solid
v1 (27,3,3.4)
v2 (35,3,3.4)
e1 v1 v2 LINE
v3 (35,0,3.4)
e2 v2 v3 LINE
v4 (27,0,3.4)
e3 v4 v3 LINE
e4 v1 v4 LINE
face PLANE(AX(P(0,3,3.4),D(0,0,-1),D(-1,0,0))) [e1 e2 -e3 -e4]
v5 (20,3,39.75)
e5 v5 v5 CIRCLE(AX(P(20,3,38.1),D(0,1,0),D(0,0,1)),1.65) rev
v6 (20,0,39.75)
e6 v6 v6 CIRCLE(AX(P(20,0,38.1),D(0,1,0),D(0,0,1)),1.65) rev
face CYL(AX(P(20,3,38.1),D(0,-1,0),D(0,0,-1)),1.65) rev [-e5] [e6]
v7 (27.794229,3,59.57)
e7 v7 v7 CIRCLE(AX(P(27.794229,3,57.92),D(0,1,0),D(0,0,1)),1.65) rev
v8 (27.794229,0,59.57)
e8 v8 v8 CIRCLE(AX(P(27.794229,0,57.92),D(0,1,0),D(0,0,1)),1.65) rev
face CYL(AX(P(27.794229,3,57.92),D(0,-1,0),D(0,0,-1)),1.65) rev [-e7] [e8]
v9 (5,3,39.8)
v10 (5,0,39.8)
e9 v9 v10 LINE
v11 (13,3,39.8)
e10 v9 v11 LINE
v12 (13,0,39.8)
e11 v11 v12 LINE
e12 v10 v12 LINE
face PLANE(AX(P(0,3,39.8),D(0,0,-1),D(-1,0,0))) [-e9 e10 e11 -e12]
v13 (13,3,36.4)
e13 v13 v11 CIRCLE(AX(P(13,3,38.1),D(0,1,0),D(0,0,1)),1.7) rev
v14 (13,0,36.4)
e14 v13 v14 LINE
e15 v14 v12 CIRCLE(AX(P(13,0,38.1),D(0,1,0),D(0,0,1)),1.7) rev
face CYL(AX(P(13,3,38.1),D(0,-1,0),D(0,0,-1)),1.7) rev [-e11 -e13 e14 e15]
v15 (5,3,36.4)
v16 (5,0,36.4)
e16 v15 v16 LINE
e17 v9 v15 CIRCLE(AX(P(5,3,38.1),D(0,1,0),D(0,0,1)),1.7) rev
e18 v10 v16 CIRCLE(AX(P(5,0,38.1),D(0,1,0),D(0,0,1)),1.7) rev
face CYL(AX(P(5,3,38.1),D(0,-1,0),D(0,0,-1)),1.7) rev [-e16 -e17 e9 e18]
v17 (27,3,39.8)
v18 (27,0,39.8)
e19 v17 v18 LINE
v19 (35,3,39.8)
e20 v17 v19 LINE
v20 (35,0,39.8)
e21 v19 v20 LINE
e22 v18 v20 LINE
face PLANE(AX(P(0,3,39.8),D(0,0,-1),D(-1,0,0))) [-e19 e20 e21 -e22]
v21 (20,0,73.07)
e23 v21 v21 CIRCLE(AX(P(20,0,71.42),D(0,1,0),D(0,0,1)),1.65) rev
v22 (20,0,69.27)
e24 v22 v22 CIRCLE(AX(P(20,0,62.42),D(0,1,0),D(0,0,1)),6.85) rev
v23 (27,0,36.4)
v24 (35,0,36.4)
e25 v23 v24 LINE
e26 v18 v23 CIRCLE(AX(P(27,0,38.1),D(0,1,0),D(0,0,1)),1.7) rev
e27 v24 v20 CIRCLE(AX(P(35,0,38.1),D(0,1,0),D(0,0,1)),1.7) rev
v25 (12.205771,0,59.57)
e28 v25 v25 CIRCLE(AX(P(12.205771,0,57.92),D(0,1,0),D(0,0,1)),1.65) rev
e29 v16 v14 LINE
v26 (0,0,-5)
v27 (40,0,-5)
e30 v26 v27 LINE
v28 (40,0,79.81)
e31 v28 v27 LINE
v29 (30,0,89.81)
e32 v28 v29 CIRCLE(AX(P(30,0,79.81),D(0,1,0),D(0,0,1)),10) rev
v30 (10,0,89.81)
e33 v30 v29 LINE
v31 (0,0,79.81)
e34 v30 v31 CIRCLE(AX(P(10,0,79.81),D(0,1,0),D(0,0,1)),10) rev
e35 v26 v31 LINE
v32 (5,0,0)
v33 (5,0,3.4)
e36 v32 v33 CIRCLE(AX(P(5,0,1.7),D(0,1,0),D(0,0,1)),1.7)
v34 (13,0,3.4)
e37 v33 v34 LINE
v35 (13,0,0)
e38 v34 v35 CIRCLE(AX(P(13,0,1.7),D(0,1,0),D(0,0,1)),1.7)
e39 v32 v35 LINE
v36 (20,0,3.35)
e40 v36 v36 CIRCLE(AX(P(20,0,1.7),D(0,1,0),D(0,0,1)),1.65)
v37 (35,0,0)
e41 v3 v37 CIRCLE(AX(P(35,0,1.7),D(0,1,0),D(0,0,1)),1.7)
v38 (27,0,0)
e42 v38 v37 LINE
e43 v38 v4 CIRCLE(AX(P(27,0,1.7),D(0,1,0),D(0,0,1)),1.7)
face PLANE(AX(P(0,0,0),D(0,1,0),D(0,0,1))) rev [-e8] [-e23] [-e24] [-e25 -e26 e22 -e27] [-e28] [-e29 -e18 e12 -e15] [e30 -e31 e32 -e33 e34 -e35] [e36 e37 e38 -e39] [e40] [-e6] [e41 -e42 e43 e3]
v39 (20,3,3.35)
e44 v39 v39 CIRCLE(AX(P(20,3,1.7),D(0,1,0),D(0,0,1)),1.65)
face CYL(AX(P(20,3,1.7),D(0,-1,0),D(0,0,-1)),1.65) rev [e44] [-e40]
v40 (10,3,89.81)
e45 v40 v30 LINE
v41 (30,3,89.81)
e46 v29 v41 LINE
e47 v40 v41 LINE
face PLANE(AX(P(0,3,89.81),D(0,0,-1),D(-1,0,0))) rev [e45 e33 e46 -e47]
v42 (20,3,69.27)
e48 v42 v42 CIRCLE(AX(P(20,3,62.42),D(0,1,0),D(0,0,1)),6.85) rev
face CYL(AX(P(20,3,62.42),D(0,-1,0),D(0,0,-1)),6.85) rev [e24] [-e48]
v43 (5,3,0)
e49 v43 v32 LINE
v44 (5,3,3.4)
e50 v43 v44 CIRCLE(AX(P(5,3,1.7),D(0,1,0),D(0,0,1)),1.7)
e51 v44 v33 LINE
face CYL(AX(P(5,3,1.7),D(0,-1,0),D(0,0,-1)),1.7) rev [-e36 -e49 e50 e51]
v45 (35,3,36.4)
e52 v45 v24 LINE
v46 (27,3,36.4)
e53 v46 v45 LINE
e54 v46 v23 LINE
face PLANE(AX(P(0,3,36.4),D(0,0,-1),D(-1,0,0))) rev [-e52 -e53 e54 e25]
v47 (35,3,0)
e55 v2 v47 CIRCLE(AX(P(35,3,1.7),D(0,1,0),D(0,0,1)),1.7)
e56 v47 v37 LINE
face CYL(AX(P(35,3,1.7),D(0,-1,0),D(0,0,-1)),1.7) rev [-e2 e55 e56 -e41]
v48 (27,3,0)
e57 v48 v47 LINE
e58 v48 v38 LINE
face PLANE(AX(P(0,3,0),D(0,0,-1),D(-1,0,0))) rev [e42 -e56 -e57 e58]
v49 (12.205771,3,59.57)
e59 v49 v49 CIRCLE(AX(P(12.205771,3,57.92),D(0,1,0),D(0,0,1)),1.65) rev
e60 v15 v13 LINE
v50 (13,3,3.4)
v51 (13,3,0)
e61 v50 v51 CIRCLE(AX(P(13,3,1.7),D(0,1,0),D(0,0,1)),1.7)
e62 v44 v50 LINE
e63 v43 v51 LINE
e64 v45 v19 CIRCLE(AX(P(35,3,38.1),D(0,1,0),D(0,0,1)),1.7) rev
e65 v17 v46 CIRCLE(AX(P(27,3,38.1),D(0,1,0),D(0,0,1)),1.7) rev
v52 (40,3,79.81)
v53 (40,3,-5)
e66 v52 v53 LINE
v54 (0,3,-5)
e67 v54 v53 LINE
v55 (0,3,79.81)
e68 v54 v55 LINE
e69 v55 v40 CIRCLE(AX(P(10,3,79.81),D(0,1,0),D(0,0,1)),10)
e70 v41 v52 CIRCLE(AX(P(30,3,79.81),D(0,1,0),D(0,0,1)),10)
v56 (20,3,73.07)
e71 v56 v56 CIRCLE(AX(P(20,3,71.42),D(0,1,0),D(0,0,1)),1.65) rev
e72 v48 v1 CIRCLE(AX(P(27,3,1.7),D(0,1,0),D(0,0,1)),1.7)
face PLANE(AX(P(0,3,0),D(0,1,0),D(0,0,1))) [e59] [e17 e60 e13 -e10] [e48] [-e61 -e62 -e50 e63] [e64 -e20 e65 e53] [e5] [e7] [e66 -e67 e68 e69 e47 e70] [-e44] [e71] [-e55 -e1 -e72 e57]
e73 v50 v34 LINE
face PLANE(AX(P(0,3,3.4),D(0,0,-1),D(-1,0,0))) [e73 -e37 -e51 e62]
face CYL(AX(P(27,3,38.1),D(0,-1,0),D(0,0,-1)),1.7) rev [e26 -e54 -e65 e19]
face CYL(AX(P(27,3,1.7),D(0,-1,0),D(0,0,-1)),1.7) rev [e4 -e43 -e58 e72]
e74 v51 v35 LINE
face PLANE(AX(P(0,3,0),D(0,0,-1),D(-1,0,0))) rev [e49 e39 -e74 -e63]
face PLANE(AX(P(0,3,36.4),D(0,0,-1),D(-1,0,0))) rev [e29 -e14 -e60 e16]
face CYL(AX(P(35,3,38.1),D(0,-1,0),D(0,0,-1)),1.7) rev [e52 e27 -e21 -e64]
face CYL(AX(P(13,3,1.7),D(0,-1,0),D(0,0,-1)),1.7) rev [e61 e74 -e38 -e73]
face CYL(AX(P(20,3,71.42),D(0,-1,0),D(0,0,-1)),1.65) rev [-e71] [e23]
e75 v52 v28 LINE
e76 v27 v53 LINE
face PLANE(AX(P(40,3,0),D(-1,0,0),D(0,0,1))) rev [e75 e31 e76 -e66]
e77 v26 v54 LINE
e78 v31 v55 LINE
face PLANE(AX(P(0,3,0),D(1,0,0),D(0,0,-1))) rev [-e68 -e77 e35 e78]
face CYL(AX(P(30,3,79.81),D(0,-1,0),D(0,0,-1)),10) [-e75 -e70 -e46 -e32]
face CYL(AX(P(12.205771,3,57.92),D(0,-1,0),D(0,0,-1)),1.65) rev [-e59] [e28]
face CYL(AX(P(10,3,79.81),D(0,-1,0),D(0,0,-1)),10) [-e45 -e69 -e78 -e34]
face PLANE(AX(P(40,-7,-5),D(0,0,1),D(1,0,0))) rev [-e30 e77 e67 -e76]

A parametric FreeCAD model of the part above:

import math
import FreeCAD as App
import Part
import Sketcher
from FreeCAD import Vector
Q = App.Units.Quantity


def edges_at(feature, points):
    """Names of the edges that pass closest to the given points."""
    edges = feature.Shape.Edges
    near = lambda p: min(range(len(edges)), key=lambda i: edges[i].distToShape(Part.Vertex(*p))[0])
    return sorted({f"Edge{near(p) + 1}" for p in points})


def add_polygon(sketch, points):
    """Adds a closed chain of lines whose ends are joined by coincident constraints."""
    first, n = sketch.GeometryCount, len(points)
    for a, b in zip(points, points[1:] + points[:1]):
        sketch.addGeometry(Part.LineSegment(App.Vector(*a, 0), App.Vector(*b, 0)), False)
    for i in range(n):
        sketch.addConstraint(Sketcher.Constraint("Coincident", first + i, 2, first + (i + 1) % n, 1))

doc = App.newDocument("Part")
body = doc.addObject("PartDesign::Body", "Body")

# Sketch on XZ plane
sketch1 = body.newObject("Sketcher::SketchObject", "Sketch")
sketch1.AttachmentSupport = (doc.getObject("XZ_Plane"), [""])
sketch1.MapMode = "FlatFace"
add_polygon(sketch1, [(0, -50), (0, 89.8), (40, 89.8), (40, -50)])  # lines 0-3
sketch1.addGeometry(Part.Circle(Vector(27.8, 57.9, 0), Vector(0, 0, 1), 1.6), False)  # 4
sketch1.addGeometry(Part.ArcOfCircle(Part.Circle(Vector(27, 38.1, 0), Vector(0, 0, 1), 1.7), math.radians(90), math.radians(270)), False)  # 5
sketch1.addGeometry(Part.LineSegment(Vector(27, 36.4, 0), Vector(35, 36.4, 0)), False)  # 6
sketch1.addGeometry(Part.ArcOfCircle(Part.Circle(Vector(35, 38.1, 0), Vector(0, 0, 1), 1.7), math.radians(-90), math.radians(90)), False)  # 7
sketch1.addGeometry(Part.LineSegment(Vector(35, 39.8, 0), Vector(27, 39.8, 0)), False)  # 8
sketch1.addGeometry(Part.Circle(Vector(20, 71.4, 0), Vector(0, 0, 1), 1.6), False)  # 9
sketch1.addGeometry(Part.Circle(Vector(20, 62.4, 0), Vector(0, 0, 1), 6.8), False)  # 10
sketch1.addGeometry(Part.Circle(Vector(12.2, 57.9, 0), Vector(0, 0, 1), 1.6), False)  # 11
sketch1.addGeometry(Part.Circle(Vector(20, 38.1, 0), Vector(0, 0, 1), 1.6), False)  # 12
sketch1.addGeometry(Part.ArcOfCircle(Part.Circle(Vector(5, 38.1, 0), Vector(0, 0, 1), 1.7), math.radians(90), math.radians(270)), False)  # 13
sketch1.addGeometry(Part.LineSegment(Vector(5, 36.4, 0), Vector(13, 36.4, 0)), False)  # 14
sketch1.addGeometry(Part.ArcOfCircle(Part.Circle(Vector(13, 38.1, 0), Vector(0, 0, 1), 1.7), math.radians(-90), math.radians(90)), False)  # 15
sketch1.addGeometry(Part.LineSegment(Vector(13, 39.8, 0), Vector(5, 39.8, 0)), False)  # 16
sketch1.addGeometry(Part.LineSegment(Vector(27, 0, 0), Vector(35, 0, 0)), False)  # 17
sketch1.addGeometry(Part.ArcOfCircle(Part.Circle(Vector(35, 1.7, 0), Vector(0, 0, 1), 1.7), math.radians(-90), math.radians(90)), False)  # 18
sketch1.addGeometry(Part.LineSegment(Vector(35, 3.4, 0), Vector(27, 3.4, 0)), False)  # 19
sketch1.addGeometry(Part.ArcOfCircle(Part.Circle(Vector(27, 1.7, 0), Vector(0, 0, 1), 1.7), math.radians(90), math.radians(270)), False)  # 20
sketch1.addGeometry(Part.Circle(Vector(27.8, -18.1, 0), Vector(0, 0, 1), 1.6), False)  # 21
sketch1.addGeometry(Part.Circle(Vector(20, 1.7, 0), Vector(0, 0, 1), 1.6), False)  # 22
sketch1.addGeometry(Part.LineSegment(Vector(5, 0, 0), Vector(13, 0, 0)), False)  # 23
sketch1.addGeometry(Part.ArcOfCircle(Part.Circle(Vector(13, 1.7, 0), Vector(0, 0, 1), 1.7), math.radians(-90), math.radians(90)), False)  # 24
sketch1.addGeometry(Part.LineSegment(Vector(13, 3.4, 0), Vector(5, 3.4, 0)), False)  # 25
sketch1.addGeometry(Part.ArcOfCircle(Part.Circle(Vector(5, 1.7, 0), Vector(0, 0, 1), 1.7), math.radians(90), math.radians(270)), False)  # 26
sketch1.addGeometry(Part.Circle(Vector(12.2, -18.1, 0), Vector(0, 0, 1), 1.6), False)  # 27
sketch1.addGeometry(Part.Circle(Vector(20, -22.6, 0), Vector(0, 0, 1), 6.8), False)  # 28
sketch1.addGeometry(Part.Circle(Vector(20, -31.6, 0), Vector(0, 0, 1), 1.6), False)  # 29
sketch1.addConstraint([
    Sketcher.Constraint("Tangent", 5, 2, 6, 1),
    Sketcher.Constraint("Tangent", 6, 2, 7, 1),
    Sketcher.Constraint("Tangent", 7, 2, 8, 1),
    Sketcher.Constraint("Tangent", 8, 2, 5, 1),
    Sketcher.Constraint("Tangent", 13, 2, 14, 1),
    Sketcher.Constraint("Tangent", 14, 2, 15, 1),
    Sketcher.Constraint("Tangent", 15, 2, 16, 1),
    Sketcher.Constraint("Tangent", 16, 2, 13, 1),
    Sketcher.Constraint("Tangent", 17, 2, 18, 1),
    Sketcher.Constraint("Tangent", 18, 2, 19, 1),
    Sketcher.Constraint("Tangent", 19, 2, 20, 1),
    Sketcher.Constraint("Tangent", 20, 2, 17, 1),
    Sketcher.Constraint("Tangent", 23, 2, 24, 1),
    Sketcher.Constraint("Tangent", 24, 2, 25, 1),
    Sketcher.Constraint("Tangent", 25, 2, 26, 1),
    Sketcher.Constraint("Tangent", 26, 2, 23, 1),
    Sketcher.Constraint("Vertical", 0),
    Sketcher.Constraint("Horizontal", 1),
    Sketcher.Constraint("Vertical", 2),
    Sketcher.Constraint("Horizontal", 3),
    Sketcher.Constraint("Horizontal", 6),
    Sketcher.Constraint("Horizontal", 8),
    Sketcher.Constraint("Horizontal", 14),
    Sketcher.Constraint("Horizontal", 16),
    Sketcher.Constraint("Horizontal", 17),
    Sketcher.Constraint("Horizontal", 19),
    Sketcher.Constraint("Horizontal", 23),
    Sketcher.Constraint("Horizontal", 25),
    Sketcher.Constraint("Equal", 4, 9),
    Sketcher.Constraint("Equal", 9, 11),
    Sketcher.Constraint("Equal", 11, 12),
    Sketcher.Constraint("Equal", 7, 13),
    Sketcher.Constraint("Equal", 15, 18),
    Sketcher.Constraint("Equal", 12, 21),
    Sketcher.Constraint("Equal", 21, 22),
    Sketcher.Constraint("Equal", 20, 24),
    Sketcher.Constraint("Equal", 22, 27),
    Sketcher.Constraint("Equal", 10, 28),
    Sketcher.Constraint("Equal", 27, 29),
    Sketcher.Constraint("PointOnObject", 0, 2, -2),
    Sketcher.Constraint("PointOnObject", 17, 2, -1),
    Sketcher.Constraint("PointOnObject", 23, 2, -1),
    Sketcher.Constraint("Horizontal", 4, 3, 11, 3),
    Sketcher.Constraint("Horizontal", 7, 3, 12, 3),
    Sketcher.Constraint("Horizontal", 12, 3, 13, 3),
    Sketcher.Constraint("Horizontal", 20, 3, 22, 3),
    Sketcher.Constraint("Horizontal", 21, 3, 27, 3),
    Sketcher.Constraint("Vertical", 9, 3, 10, 3),
    Sketcher.Constraint("Vertical", 10, 3, 12, 3),
    Sketcher.Constraint("Vertical", 7, 3, 18, 3),
    Sketcher.Constraint("Vertical", 5, 3, 20, 3),
    Sketcher.Constraint("Vertical", 4, 3, 21, 3),
    Sketcher.Constraint("Vertical", 12, 3, 22, 3),
    Sketcher.Constraint("Vertical", 15, 3, 24, 3),
    Sketcher.Constraint("Vertical", 13, 3, 26, 3),
    Sketcher.Constraint("Vertical", 11, 3, 27, 3),
    Sketcher.Constraint("Vertical", 22, 3, 28, 3),
    Sketcher.Constraint("Vertical", 28, 3, 29, 3),
    Sketcher.Constraint("Equal", 8, 14),
    Sketcher.Constraint("Diameter", 4, Q("3.3 mm")),
    Sketcher.Constraint("Diameter", 10, Q("13.7 mm")),
    Sketcher.Constraint("Radius", 5, Q("1.7 mm")),
    Sketcher.Constraint("DistanceX", 1, 1, 1, 2, Q("40 mm")),
    Sketcher.Constraint("DistanceX", 6, 1, 6, 2, Q("8 mm")),
    Sketcher.Constraint("DistanceX", -1, 1, 5, 3, Q("27 mm")),
    Sketcher.Constraint("DistanceX", -1, 1, 9, 3, Q("20 mm")),
    Sketcher.Constraint("DistanceX", -1, 1, 13, 3, Q("5 mm")),
    Sketcher.Constraint("DistanceY", 10, 3, 9, 3, Q("9 mm")),
    Sketcher.Constraint("DistanceY", 29, 3, 28, 3, Q("9 mm")),
    Sketcher.Constraint("DistanceY", 0, 1, 0, 2, Q("139.82 mm")),
    Sketcher.Constraint("DistanceY", -1, 1, 5, 3, Q("38.1 mm")),
    Sketcher.Constraint("DistanceY", 4, 3, 9, 3, Q("13.5 mm")),
    Sketcher.Constraint("DistanceY", 28, 3, 21, 3, Q("4.5 mm")),
    Sketcher.Constraint("DistanceY", -1, 1, 4, 3, Q("57.92 mm")),
    Sketcher.Constraint("DistanceY", 21, 3, -1, 1, Q("18.12 mm")),
    Sketcher.Constraint("DistanceY", -1, 1, 0, 2, Q("89.81 mm")),
    Sketcher.Constraint("DistanceX", -1, 1, 4, 3, Q("27.794229 mm")),
    Sketcher.Constraint("DistanceX", -1, 1, 11, 3, Q("12.205771 mm")),
])
pad1 = body.newObject("PartDesign::Pad", "Pad")
pad1.Profile = sketch1
pad1.Length = 3
pad1.Reversed = True
doc.recompute()

fillet = body.newObject("PartDesign::Fillet", "Fillet")
fillet.Base = (pad1, edges_at(pad1, [
    (0, 1.5, -50.01),
    (40, 1.5, -50.01),
    (40, 1.5, 89.81),
    (0, 1.5, 89.81),
]))
fillet.Radius = 10

# Sketch on XZ plane
sketch2 = body.newObject("Sketcher::SketchObject", "Sketch001")
sketch2.AttachmentSupport = (doc.getObject("XZ_Plane"), [""])
sketch2.MapMode = "FlatFace"
sketch2.AttachmentOffset = App.Placement(Vector(0, 0, -3), App.Rotation())
add_polygon(sketch2, [(0, -78), (0, -5), (40, -5), (40, -78)])  # lines 0-3
sketch2.addConstraint([
    Sketcher.Constraint("Vertical", 0),
    Sketcher.Constraint("Horizontal", 1),
    Sketcher.Constraint("Vertical", 2),
    Sketcher.Constraint("Horizontal", 3),
    Sketcher.Constraint("PointOnObject", 0, 2, -2),
    Sketcher.Constraint("DistanceX", 1, 1, 1, 2, Q("40 mm")),
    Sketcher.Constraint("DistanceY", 0, 2, -1, 1, Q("5 mm")),
    Sketcher.Constraint("DistanceY", 0, 1, 0, 2, Q("72.562953 mm")),
])
pocket1 = body.newObject("PartDesign::Pocket", "Pocket")
pocket1.Profile = sketch2
pocket1.Length = 10
pocket1.Reversed = True

doc.recompute()
